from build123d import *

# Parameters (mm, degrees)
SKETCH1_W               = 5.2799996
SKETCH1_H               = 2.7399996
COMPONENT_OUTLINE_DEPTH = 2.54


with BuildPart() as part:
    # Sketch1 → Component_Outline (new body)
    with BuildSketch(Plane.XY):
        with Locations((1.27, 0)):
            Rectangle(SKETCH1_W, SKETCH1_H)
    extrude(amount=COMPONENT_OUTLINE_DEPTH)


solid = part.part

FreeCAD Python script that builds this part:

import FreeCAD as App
import Part
import Sketcher

V = App.Vector

doc = App.newDocument("Part")
params = doc.addObject("Spreadsheet::Sheet", "Params")
for row, (alias, value) in enumerate([
    ("pad1_length", "0.1 in"),
], start=1):
    params.set(f"A{row}", alias)
    params.set(f"B{row}", "=" + value)
    params.setAlias(f"B{row}", alias)

body = doc.addObject("PartDesign::Body", "Body")

# Sketch on XY plane
sketch1 = body.newObject("Sketcher::SketchObject", "Sketch")
sketch1.AttachmentSupport = (doc.getObject("XY_Plane"), [""])
sketch1.MapMode = "FlatFace"
sketch1.addGeometry([
    Part.LineSegment(V(-1.37, 1.37, 0), V(-1.37, -1.37, 0)),
    Part.LineSegment(V(-1.37, -1.37, 0), V(3.91, -1.37, 0)),
    Part.LineSegment(V(3.91, -1.37, 0), V(3.91, 1.37, 0)),
    Part.LineSegment(V(3.91, 1.37, 0), V(-1.37, 1.37, 0)),
], False)
sketch1.addConstraint([
    Sketcher.Constraint("Coincident", 0, 2, 1, 1),
    Sketcher.Constraint("Coincident", 1, 2, 2, 1),
    Sketcher.Constraint("Coincident", 2, 2, 3, 1),
    Sketcher.Constraint("Coincident", 3, 2, 0, 1),
    Sketcher.Constraint("Vertical", 0),
    Sketcher.Constraint("Horizontal", 1),
    Sketcher.Constraint("Vertical", 2),
    Sketcher.Constraint("Horizontal", 3),
    Sketcher.Constraint("DistanceX", 1, 1, 1, 2, 5.28),
    Sketcher.Constraint("DistanceY", 0, 2, 0, 1, 2.74),
    Sketcher.Constraint("DistanceX", 0, 2, -1, 1, 1.37),
    Sketcher.Constraint("DistanceY", 0, 2, -1, 1, 1.37),
])
pad1 = body.newObject("PartDesign::Pad", "Pad")
pad1.Profile = sketch1
pad1.setExpression("Length", "Params.pad1_length")

doc.recompute()
